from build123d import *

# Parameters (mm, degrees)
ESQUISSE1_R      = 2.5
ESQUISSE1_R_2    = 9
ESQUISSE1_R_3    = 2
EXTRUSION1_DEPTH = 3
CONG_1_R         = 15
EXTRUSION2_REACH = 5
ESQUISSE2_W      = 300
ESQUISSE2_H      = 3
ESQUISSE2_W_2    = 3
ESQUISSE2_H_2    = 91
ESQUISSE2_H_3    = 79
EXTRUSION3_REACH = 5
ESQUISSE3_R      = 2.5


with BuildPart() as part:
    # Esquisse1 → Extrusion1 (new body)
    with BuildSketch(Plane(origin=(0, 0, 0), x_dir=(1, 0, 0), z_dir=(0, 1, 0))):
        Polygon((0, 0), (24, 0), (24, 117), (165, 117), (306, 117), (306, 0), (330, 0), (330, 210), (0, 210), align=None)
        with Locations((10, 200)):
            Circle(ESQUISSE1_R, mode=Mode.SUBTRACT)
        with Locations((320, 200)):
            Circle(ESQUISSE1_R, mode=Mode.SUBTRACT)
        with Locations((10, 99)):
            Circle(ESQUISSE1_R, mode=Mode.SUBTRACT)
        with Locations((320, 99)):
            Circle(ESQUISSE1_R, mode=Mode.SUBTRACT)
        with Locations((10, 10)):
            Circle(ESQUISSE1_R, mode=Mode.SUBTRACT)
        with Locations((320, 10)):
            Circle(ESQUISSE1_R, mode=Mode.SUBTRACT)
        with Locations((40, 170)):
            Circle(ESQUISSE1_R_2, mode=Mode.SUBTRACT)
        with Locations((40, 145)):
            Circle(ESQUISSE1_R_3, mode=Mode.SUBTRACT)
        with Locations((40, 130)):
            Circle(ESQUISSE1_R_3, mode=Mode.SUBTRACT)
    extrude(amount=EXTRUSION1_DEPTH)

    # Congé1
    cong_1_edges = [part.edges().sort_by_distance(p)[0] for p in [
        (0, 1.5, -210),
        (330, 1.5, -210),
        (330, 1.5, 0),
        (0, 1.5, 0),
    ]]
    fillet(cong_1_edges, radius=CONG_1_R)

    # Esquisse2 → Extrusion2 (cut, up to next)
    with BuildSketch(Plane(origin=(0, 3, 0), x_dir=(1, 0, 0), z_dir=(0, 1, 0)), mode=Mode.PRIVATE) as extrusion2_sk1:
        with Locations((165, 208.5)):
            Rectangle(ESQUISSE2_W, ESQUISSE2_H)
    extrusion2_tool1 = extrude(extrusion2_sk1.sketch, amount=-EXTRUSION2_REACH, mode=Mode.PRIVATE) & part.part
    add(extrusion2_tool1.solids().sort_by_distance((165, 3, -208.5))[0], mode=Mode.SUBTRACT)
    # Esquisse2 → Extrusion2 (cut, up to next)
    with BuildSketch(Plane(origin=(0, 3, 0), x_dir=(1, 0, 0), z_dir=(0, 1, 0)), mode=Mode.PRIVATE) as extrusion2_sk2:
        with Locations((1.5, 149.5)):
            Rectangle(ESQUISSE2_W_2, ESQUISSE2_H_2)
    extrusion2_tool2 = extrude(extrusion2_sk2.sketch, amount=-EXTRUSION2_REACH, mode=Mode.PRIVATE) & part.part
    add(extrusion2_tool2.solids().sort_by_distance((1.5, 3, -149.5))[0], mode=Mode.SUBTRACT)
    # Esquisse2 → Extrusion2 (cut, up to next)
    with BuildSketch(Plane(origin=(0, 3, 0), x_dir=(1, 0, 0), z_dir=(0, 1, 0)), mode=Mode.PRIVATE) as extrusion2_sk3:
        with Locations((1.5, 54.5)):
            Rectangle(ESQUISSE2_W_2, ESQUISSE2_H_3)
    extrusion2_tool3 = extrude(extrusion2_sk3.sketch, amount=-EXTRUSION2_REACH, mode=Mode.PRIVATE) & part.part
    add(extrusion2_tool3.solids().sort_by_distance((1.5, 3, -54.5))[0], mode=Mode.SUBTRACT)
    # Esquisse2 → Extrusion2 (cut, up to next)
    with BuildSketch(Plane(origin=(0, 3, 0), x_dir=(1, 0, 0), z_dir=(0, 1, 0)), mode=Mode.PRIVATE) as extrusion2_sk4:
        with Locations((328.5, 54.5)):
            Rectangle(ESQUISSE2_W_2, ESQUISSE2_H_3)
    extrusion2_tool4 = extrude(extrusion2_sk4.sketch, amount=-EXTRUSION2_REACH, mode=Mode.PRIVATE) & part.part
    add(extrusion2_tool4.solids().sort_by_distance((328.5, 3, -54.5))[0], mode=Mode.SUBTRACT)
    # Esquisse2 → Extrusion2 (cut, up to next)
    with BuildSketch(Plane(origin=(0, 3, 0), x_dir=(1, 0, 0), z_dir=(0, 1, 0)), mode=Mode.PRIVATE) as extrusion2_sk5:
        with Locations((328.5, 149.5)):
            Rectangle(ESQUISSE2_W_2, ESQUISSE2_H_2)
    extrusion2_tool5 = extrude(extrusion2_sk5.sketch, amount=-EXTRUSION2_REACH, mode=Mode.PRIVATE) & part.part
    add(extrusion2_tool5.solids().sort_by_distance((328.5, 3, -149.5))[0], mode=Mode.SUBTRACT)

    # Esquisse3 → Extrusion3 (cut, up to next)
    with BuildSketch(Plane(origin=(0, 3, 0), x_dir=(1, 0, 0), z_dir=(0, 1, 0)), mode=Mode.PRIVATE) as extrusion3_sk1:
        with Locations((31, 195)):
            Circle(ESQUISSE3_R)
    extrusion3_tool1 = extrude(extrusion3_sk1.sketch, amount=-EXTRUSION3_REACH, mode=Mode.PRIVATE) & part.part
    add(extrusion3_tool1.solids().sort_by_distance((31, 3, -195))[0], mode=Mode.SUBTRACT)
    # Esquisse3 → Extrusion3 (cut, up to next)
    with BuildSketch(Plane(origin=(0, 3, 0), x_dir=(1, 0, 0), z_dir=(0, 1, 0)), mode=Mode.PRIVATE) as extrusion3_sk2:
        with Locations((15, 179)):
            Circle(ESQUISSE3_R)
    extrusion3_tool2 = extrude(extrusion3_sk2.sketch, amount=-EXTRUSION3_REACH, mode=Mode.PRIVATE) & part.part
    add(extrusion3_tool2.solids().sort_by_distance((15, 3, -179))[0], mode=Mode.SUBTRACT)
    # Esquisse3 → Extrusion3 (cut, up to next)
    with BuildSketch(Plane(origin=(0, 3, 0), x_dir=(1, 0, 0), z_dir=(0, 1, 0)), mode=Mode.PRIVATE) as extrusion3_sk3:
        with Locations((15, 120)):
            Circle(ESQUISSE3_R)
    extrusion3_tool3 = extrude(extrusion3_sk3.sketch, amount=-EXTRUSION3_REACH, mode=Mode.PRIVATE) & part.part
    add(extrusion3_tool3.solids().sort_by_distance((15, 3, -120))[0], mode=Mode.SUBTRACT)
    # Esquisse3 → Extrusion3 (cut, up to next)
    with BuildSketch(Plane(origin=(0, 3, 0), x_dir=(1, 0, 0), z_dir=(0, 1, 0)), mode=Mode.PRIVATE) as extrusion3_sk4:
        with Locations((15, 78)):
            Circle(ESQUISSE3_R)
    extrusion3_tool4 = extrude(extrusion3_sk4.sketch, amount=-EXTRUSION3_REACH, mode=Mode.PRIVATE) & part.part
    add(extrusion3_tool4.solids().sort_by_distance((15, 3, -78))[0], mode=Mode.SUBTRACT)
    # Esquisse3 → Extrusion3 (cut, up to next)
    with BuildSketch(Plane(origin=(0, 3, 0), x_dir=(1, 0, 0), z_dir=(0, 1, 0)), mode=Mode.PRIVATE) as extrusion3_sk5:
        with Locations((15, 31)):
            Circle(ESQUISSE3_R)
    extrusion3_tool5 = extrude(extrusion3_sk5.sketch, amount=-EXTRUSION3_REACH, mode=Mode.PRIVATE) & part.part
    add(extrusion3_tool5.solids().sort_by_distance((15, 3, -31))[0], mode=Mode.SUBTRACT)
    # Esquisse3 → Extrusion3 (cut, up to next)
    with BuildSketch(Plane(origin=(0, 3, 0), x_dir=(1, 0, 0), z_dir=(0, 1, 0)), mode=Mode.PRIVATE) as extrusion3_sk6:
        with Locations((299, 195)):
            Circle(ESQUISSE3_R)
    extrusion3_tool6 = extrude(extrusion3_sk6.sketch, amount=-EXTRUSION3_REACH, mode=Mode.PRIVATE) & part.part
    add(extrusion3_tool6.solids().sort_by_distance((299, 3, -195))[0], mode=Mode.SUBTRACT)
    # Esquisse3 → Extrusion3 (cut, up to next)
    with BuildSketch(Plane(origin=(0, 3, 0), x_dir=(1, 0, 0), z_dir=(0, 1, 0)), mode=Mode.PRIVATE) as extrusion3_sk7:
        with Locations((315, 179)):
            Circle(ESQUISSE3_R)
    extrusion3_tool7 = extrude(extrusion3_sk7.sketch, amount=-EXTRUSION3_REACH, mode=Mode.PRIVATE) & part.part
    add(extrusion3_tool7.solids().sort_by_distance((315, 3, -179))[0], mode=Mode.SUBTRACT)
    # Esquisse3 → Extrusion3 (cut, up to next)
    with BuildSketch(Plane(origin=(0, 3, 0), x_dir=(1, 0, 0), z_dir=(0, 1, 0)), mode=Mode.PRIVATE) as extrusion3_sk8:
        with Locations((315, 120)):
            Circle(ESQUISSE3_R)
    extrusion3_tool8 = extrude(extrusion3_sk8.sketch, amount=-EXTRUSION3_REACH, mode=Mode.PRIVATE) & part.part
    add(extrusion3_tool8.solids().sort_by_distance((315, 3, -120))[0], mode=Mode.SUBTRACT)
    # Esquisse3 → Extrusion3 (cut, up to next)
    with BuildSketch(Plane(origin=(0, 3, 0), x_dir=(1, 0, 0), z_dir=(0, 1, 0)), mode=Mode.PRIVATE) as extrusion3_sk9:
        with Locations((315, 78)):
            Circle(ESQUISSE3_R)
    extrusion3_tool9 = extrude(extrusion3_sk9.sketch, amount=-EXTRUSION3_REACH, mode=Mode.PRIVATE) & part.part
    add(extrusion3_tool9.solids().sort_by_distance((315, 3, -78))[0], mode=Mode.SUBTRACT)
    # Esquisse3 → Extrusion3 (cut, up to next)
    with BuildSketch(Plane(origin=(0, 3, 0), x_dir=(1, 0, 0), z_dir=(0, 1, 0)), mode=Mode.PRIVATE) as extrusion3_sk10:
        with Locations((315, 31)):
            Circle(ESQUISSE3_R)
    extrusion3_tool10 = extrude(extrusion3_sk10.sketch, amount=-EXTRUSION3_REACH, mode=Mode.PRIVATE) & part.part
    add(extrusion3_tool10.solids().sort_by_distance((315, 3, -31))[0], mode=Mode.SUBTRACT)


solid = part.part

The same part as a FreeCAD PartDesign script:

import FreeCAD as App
import Part
import Sketcher

V = App.Vector
Q = App.Units.Quantity


def edges_at(feature, points):
    """Names of the edges that pass closest to the given points."""
    edges = feature.Shape.Edges
    near = lambda p: min(range(len(edges)), key=lambda i: edges[i].distToShape(Part.Vertex(*p))[0])
    return sorted({f"Edge{near(p) + 1}" for p in points})

doc = App.newDocument("Part")
body = doc.addObject("PartDesign::Body", "Body")

# Sketch on XZ plane
sketch1 = body.newObject("Sketcher::SketchObject", "Sketch")
sketch1.AttachmentSupport = (doc.getObject("XZ_Plane"), [""])
sketch1.MapMode = "FlatFace"
sketch1.addGeometry([
    Part.LineSegment(V(0, 0, 0), V(24, 0, 0)),  # 0
    Part.LineSegment(V(24, 0, 0), V(24, -117, 0)),  # 1
    Part.LineSegment(V(24, -117, 0), V(306, -117, 0)),  # 2
    Part.LineSegment(V(306, -117, 0), V(306, 0, 0)),  # 3
    Part.LineSegment(V(306, 0, 0), V(330, 0, 0)),  # 4
    Part.LineSegment(V(330, 0, 0), V(330, -210, 0)),  # 5
    Part.LineSegment(V(330, -210, 0), V(0, -210, 0)),  # 6
    Part.LineSegment(V(0, -210, 0), V(0, 0, 0)),  # 7
    Part.Circle(V(10, -10, 0), V(0, 0, 1), 2.5),  # 8
    Part.Circle(V(10, -99, 0), V(0, 0, 1), 2.5),  # 9
    Part.Circle(V(320, -10, 0), V(0, 0, 1), 2.5),  # 10
    Part.Circle(V(320, -99, 0), V(0, 0, 1), 2.5),  # 11
    Part.Circle(V(40, -130, 0), V(0, 0, 1), 2),  # 12
    Part.Circle(V(40, -145, 0), V(0, 0, 1), 2),  # 13
    Part.Circle(V(40, -170, 0), V(0, 0, 1), 9),  # 14
    Part.Circle(V(10, -200, 0), V(0, 0, 1), 2.5),  # 15
    Part.Circle(V(320, -200, 0), V(0, 0, 1), 2.5),  # 16
], False)
sketch1.addConstraint([
    Sketcher.Constraint("Coincident", 0, 2, 1, 1),
    Sketcher.Constraint("Coincident", 1, 2, 2, 1),
    Sketcher.Constraint("Coincident", 2, 2, 3, 1),
    Sketcher.Constraint("Coincident", 3, 2, 4, 1),
    Sketcher.Constraint("Coincident", 4, 2, 5, 1),
    Sketcher.Constraint("Coincident", 5, 2, 6, 1),
    Sketcher.Constraint("Coincident", 6, 2, 7, 1),
    Sketcher.Constraint("Coincident", 7, 2, 0, 1),
    Sketcher.Constraint("Horizontal", 0),
    Sketcher.Constraint("Vertical", 1),
    Sketcher.Constraint("Horizontal", 2),
    Sketcher.Constraint("Vertical", 3),
    Sketcher.Constraint("Horizontal", 4),
    Sketcher.Constraint("Vertical", 5),
    Sketcher.Constraint("Horizontal", 6),
    Sketcher.Constraint("Vertical", 7),
    Sketcher.Constraint("Coincident", 7, 2, -1, 1),
    Sketcher.Constraint("Equal", 8, 9),
    Sketcher.Constraint("Equal", 9, 10),
    Sketcher.Constraint("Equal", 10, 11),
    Sketcher.Constraint("Equal", 12, 13),
    Sketcher.Constraint("Equal", 11, 15),
    Sketcher.Constraint("Equal", 15, 16),
    Sketcher.Constraint("PointOnObject", 3, 2, -1),
    Sketcher.Constraint("Horizontal", 8, 3, 10, 3),
    Sketcher.Constraint("Horizontal", 9, 3, 11, 3),
    Sketcher.Constraint("Horizontal", 15, 3, 16, 3),
    Sketcher.Constraint("Vertical", 8, 3, 9, 3),
    Sketcher.Constraint("Vertical", 10, 3, 11, 3),
    Sketcher.Constraint("Vertical", 12, 3, 13, 3),
    Sketcher.Constraint("Vertical", 13, 3, 14, 3),
    Sketcher.Constraint("Vertical", 9, 3, 15, 3),
    Sketcher.Constraint("Vertical", 11, 3, 16, 3),
    Sketcher.Constraint("Equal", 0, 4),
    Sketcher.Constraint("Diameter", 8, Q("5 mm")),
    Sketcher.Constraint("Diameter", 12, Q("4 mm")),
    Sketcher.Constraint("Diameter", 14, Q("18 mm")),
    Sketcher.Constraint("DistanceX", 0, 1, 0, 2, Q("24 mm")),
    Sketcher.Constraint("DistanceX", 2, 1, 2, 2, Q("282 mm")),
    Sketcher.Constraint("DistanceY", 1, 2, 1, 1, Q("117 mm")),
    Sketcher.Constraint("DistanceY", 5, 2, 5, 1, Q("210 mm")),
    Sketcher.Constraint("DistanceX", -1, 1, 8, 3, Q("10 mm")),
    Sketcher.Constraint("DistanceY", 8, 3, -1, 1, Q("10 mm")),
    Sketcher.Constraint("DistanceY", 9, 3, -1, 1, Q("99 mm")),
    Sketcher.Constraint("DistanceX", -1, 1, 10, 3, Q("320 mm")),
    Sketcher.Constraint("DistanceX", -1, 1, 12, 3, Q("40 mm")),
    Sketcher.Constraint("DistanceY", 12, 3, -1, 1, Q("130 mm")),
    Sketcher.Constraint("DistanceY", 13, 3, -1, 1, Q("145 mm")),
    Sketcher.Constraint("DistanceY", 14, 3, -1, 1, Q("170 mm")),
    Sketcher.Constraint("DistanceY", 15, 3, -1, 1, Q("200 mm")),
])
pad1 = body.newObject("PartDesign::Pad", "Pad")
pad1.Profile = sketch1
pad1.Length = 3
pad1.Reversed = True
doc.recompute()

fillet = body.newObject("PartDesign::Fillet", "Fillet")
fillet.Base = (pad1, edges_at(pad1, [
    (0, 1.5, -210),
    (330, 1.5, -210),
    (330, 1.5, 0),
    (0, 1.5, 0),
]))
fillet.Radius = 15

# Sketch on XZ plane
sketch2 = body.newObject("Sketcher::SketchObject", "Sketch001")
sketch2.AttachmentSupport = (doc.getObject("XZ_Plane"), [""])
sketch2.MapMode = "FlatFace"
sketch2.AttachmentOffset = App.Placement(V(0, 0, -3), App.Rotation())
sketch2.addGeometry([
    Part.LineSegment(V(15, -210, 0), V(15, -207, 0)),
    Part.LineSegment(V(15, -207, 0), V(315, -207, 0)),
    Part.LineSegment(V(315, -207, 0), V(315, -210, 0)),
    Part.LineSegment(V(315, -210, 0), V(15, -210, 0)),
], False)
sketch2.addConstraint([
    Sketcher.Constraint("Coincident", 0, 2, 1, 1),
    Sketcher.Constraint("Coincident", 1, 2, 2, 1),
    Sketcher.Constraint("Coincident", 2, 2, 3, 1),
    Sketcher.Constraint("Coincident", 3, 2, 0, 1),
    Sketcher.Constraint("Vertical", 0),
    Sketcher.Constraint("Horizontal", 1),
    Sketcher.Constraint("Vertical", 2),
    Sketcher.Constraint("Horizontal", 3),
    Sketcher.Constraint("DistanceX", 1, 1, 1, 2, Q("300 mm")),
    Sketcher.Constraint("DistanceY", 0, 1, 0, 2, Q("3 mm")),
    Sketcher.Constraint("DistanceX", -1, 1, 0, 2, Q("15 mm")),
    Sketcher.Constraint("DistanceY", 0, 2, -1, 1, Q("207 mm")),
])
pocket1 = body.newObject("PartDesign::Pocket", "Pocket")
pocket1.Profile = sketch2
pocket1.Type = "UpToFirst"
pocket1.Reversed = True

# Sketch on XZ plane
sketch3 = body.newObject("Sketcher::SketchObject", "Sketch002")
sketch3.AttachmentSupport = (doc.getObject("XZ_Plane"), [""])
sketch3.MapMode = "FlatFace"
sketch3.AttachmentOffset = App.Placement(V(0, 0, -3), App.Rotation())
sketch3.addGeometry([
    Part.LineSegment(V(0, -195, 0), V(0, -104, 0)),
    Part.LineSegment(V(0, -104, 0), V(3, -104, 0)),
    Part.LineSegment(V(3, -104, 0), V(3, -195, 0)),
    Part.LineSegment(V(3, -195, 0), V(0, -195, 0)),
], False)
sketch3.addConstraint([
    Sketcher.Constraint("Coincident", 0, 2, 1, 1),
    Sketcher.Constraint("Coincident", 1, 2, 2, 1),
    Sketcher.Constraint("Coincident", 2, 2, 3, 1),
    Sketcher.Constraint("Coincident", 3, 2, 0, 1),
    Sketcher.Constraint("Vertical", 0),
    Sketcher.Constraint("Horizontal", 1),
    Sketcher.Constraint("Vertical", 2),
    Sketcher.Constraint("Horizontal", 3),
    Sketcher.Constraint("PointOnObject", 0, 2, -2),
    Sketcher.Constraint("DistanceX", 1, 1, 1, 2, Q("3 mm")),
    Sketcher.Constraint("DistanceY", 0, 1, 0, 2, Q("91 mm")),
    Sketcher.Constraint("DistanceY", 0, 2, -1, 1, Q("104 mm")),
])
pocket2 = body.newObject("PartDesign::Pocket", "Pocket001")
pocket2.Profile = sketch3
pocket2.Type = "UpToFirst"
pocket2.Reversed = True

# Sketch on XZ plane
sketch4 = body.newObject("Sketcher::SketchObject", "Sketch003")
sketch4.AttachmentSupport = (doc.getObject("XZ_Plane"), [""])
sketch4.MapMode = "FlatFace"
sketch4.AttachmentOffset = App.Placement(V(0, 0, -3), App.Rotation())
sketch4.addGeometry([
    Part.LineSegment(V(0, -94, 0), V(0, -15, 0)),
    Part.LineSegment(V(0, -15, 0), V(3, -15, 0)),
    Part.LineSegment(V(3, -15, 0), V(3, -94, 0)),
    Part.LineSegment(V(3, -94, 0), V(0, -94, 0)),
], False)
sketch4.addConstraint([
    Sketcher.Constraint("Coincident", 0, 2, 1, 1),
    Sketcher.Constraint("Coincident", 1, 2, 2, 1),
    Sketcher.Constraint("Coincident", 2, 2, 3, 1),
    Sketcher.Constraint("Coincident", 3, 2, 0, 1),
    Sketcher.Constraint("Vertical", 0),
    Sketcher.Constraint("Horizontal", 1),
    Sketcher.Constraint("Vertical", 2),
    Sketcher.Constraint("Horizontal", 3),
    Sketcher.Constraint("PointOnObject", 0, 2, -2),
    Sketcher.Constraint("DistanceX", 1, 1, 1, 2, Q("3 mm")),
    Sketcher.Constraint("DistanceY", 0, 1, 0, 2, Q("79 mm")),
    Sketcher.Constraint("DistanceY", 0, 2, -1, 1, Q("15 mm")),
])
pocket3 = body.newObject("PartDesign::Pocket", "Pocket002")
pocket3.Profile = sketch4
pocket3.Type = "UpToFirst"
pocket3.Reversed = True

# Sketch on XZ plane
sketch5 = body.newObject("Sketcher::SketchObject", "Sketch004")
sketch5.AttachmentSupport = (doc.getObject("XZ_Plane"), [""])
sketch5.MapMode = "FlatFace"
sketch5.AttachmentOffset = App.Placement(V(0, 0, -3), App.Rotation())
sketch5.addGeometry([
    Part.LineSegment(V(327, -94, 0), V(327, -15, 0)),
    Part.LineSegment(V(327, -15, 0), V(330, -15, 0)),
    Part.LineSegment(V(330, -15, 0), V(330, -94, 0)),
    Part.LineSegment(V(330, -94, 0), V(327, -94, 0)),
], False)
sketch5.addConstraint([
    Sketcher.Constraint("Coincident", 0, 2, 1, 1),
    Sketcher.Constraint("Coincident", 1, 2, 2, 1),
    Sketcher.Constraint("Coincident", 2, 2, 3, 1),
    Sketcher.Constraint("Coincident", 3, 2, 0, 1),
    Sketcher.Constraint("Vertical", 0),
    Sketcher.Constraint("Horizontal", 1),
    Sketcher.Constraint("Vertical", 2),
    Sketcher.Constraint("Horizontal", 3),
    Sketcher.Constraint("DistanceX", 1, 1, 1, 2, Q("3 mm")),
    Sketcher.Constraint("DistanceY", 0, 1, 0, 2, Q("79 mm")),
    Sketcher.Constraint("DistanceX", -1, 1, 0, 2, Q("327 mm")),
    Sketcher.Constraint("DistanceY", 0, 2, -1, 1, Q("15 mm")),
])
pocket4 = body.newObject("PartDesign::Pocket", "Pocket003")
pocket4.Profile = sketch5
pocket4.Type = "UpToFirst"
pocket4.Reversed = True

# Sketch on XZ plane
sketch6 = body.newObject("Sketcher::SketchObject", "Sketch005")
sketch6.AttachmentSupport = (doc.getObject("XZ_Plane"), [""])
sketch6.MapMode = "FlatFace"
sketch6.AttachmentOffset = App.Placement(V(0, 0, -3), App.Rotation())
sketch6.addGeometry([
    Part.LineSegment(V(327, -195, 0), V(327, -104, 0)),
    Part.LineSegment(V(327, -104, 0), V(330, -104, 0)),
    Part.LineSegment(V(330, -104, 0), V(330, -195, 0)),
    Part.LineSegment(V(330, -195, 0), V(327, -195, 0)),
], False)
sketch6.addConstraint([
    Sketcher.Constraint("Coincident", 0, 2, 1, 1),
    Sketcher.Constraint("Coincident", 1, 2, 2, 1),
    Sketcher.Constraint("Coincident", 2, 2, 3, 1),
    Sketcher.Constraint("Coincident", 3, 2, 0, 1),
    Sketcher.Constraint("Vertical", 0),
    Sketcher.Constraint("Horizontal", 1),
    Sketcher.Constraint("Vertical", 2),
    Sketcher.Constraint("Horizontal", 3),
    Sketcher.Constraint("DistanceX", 1, 1, 1, 2, Q("3 mm")),
    Sketcher.Constraint("DistanceY", 0, 1, 0, 2, Q("91 mm")),
    Sketcher.Constraint("DistanceX", -1, 1, 0, 2, Q("327 mm")),
    Sketcher.Constraint("DistanceY", 0, 2, -1, 1, Q("104 mm")),
])
pocket5 = body.newObject("PartDesign::Pocket", "Pocket004")
pocket5.Profile = sketch6
pocket5.Type = "UpToFirst"
pocket5.Reversed = True

# Sketch on XZ plane
sketch7 = body.newObject("Sketcher::SketchObject", "Sketch006")
sketch7.AttachmentSupport = (doc.getObject("XZ_Plane"), [""])
sketch7.MapMode = "FlatFace"
sketch7.AttachmentOffset = App.Placement(V(0, 0, -3), App.Rotation())
sketch7.addGeometry(Part.Circle(V(31, -195, 0), V(0, 0, 1), 2.5), False)
sketch7.addConstraint([
    Sketcher.Constraint("Diameter", 0, Q("5 mm")),
    Sketcher.Constraint("DistanceX", -1, 1, 0, 3, Q("31 mm")),
    Sketcher.Constraint("DistanceY", 0, 3, -1, 1, Q("195 mm")),
])
pocket6 = body.newObject("PartDesign::Pocket", "Pocket005")
pocket6.Profile = sketch7
pocket6.Type = "UpToFirst"
pocket6.Reversed = True

# Sketch on XZ plane
sketch8 = body.newObject("Sketcher::SketchObject", "Sketch007")
sketch8.AttachmentSupport = (doc.getObject("XZ_Plane"), [""])
sketch8.MapMode = "FlatFace"
sketch8.AttachmentOffset = App.Placement(V(0, 0, -3), App.Rotation())
sketch8.addGeometry(Part.Circle(V(15, -179, 0), V(0, 0, 1), 2.5), False)
sketch8.addConstraint([
    Sketcher.Constraint("Diameter", 0, Q("5 mm")),
    Sketcher.Constraint("DistanceX", -1, 1, 0, 3, Q("15 mm")),
    Sketcher.Constraint("DistanceY", 0, 3, -1, 1, Q("179 mm")),
])
pocket7 = body.newObject("PartDesign::Pocket", "Pocket006")
pocket7.Profile = sketch8
pocket7.Type = "UpToFirst"
pocket7.Reversed = True

# Sketch on XZ plane
sketch9 = body.newObject("Sketcher::SketchObject", "Sketch008")
sketch9.AttachmentSupport = (doc.getObject("XZ_Plane"), [""])
sketch9.MapMode = "FlatFace"
sketch9.AttachmentOffset = App.Placement(V(0, 0, -3), App.Rotation())
sketch9.addGeometry(Part.Circle(V(15, -120, 0), V(0, 0, 1), 2.5), False)
sketch9.addConstraint([
    Sketcher.Constraint("Diameter", 0, Q("5 mm")),
    Sketcher.Constraint("DistanceX", -1, 1, 0, 3, Q("15 mm")),
    Sketcher.Constraint("DistanceY", 0, 3, -1, 1, Q("120 mm")),
])
pocket8 = body.newObject("PartDesign::Pocket", "Pocket007")
pocket8.Profile = sketch9
pocket8.Type = "UpToFirst"
pocket8.Reversed = True

# Sketch on XZ plane
sketch10 = body.newObject("Sketcher::SketchObject", "Sketch009")
sketch10.AttachmentSupport = (doc.getObject("XZ_Plane"), [""])
sketch10.MapMode = "FlatFace"
sketch10.AttachmentOffset = App.Placement(V(0, 0, -3), App.Rotation())
sketch10.addGeometry(Part.Circle(V(15, -78, 0), V(0, 0, 1), 2.5), False)
sketch10.addConstraint([
    Sketcher.Constraint("Diameter", 0, Q("5 mm")),
    Sketcher.Constraint("DistanceX", -1, 1, 0, 3, Q("15 mm")),
    Sketcher.Constraint("DistanceY", 0, 3, -1, 1, Q("78 mm")),
])
pocket9 = body.newObject("PartDesign::Pocket", "Pocket008")
pocket9.Profile = sketch10
pocket9.Type = "UpToFirst"
pocket9.Reversed = True

# Sketch on XZ plane
sketch11 = body.newObject("Sketcher::SketchObject", "Sketch010")
sketch11.AttachmentSupport = (doc.getObject("XZ_Plane"), [""])
sketch11.MapMode = "FlatFace"
sketch11.AttachmentOffset = App.Placement(V(0, 0, -3), App.Rotation())
sketch11.addGeometry(Part.Circle(V(15, -31, 0), V(0, 0, 1), 2.5), False)
sketch11.addConstraint([
    Sketcher.Constraint("Diameter", 0, Q("5 mm")),
    Sketcher.Constraint("DistanceX", -1, 1, 0, 3, Q("15 mm")),
    Sketcher.Constraint("DistanceY", 0, 3, -1, 1, Q("31 mm")),
])
pocket10 = body.newObject("PartDesign::Pocket", "Pocket009")
pocket10.Profile = sketch11
pocket10.Type = "UpToFirst"
pocket10.Reversed = True

# Sketch on XZ plane
sketch12 = body.newObject("Sketcher::SketchObject", "Sketch011")
sketch12.AttachmentSupport = (doc.getObject("XZ_Plane"), [""])
sketch12.MapMode = "FlatFace"
sketch12.AttachmentOffset = App.Placement(V(0, 0, -3), App.Rotation())
sketch12.addGeometry(Part.Circle(V(299, -195, 0), V(0, 0, 1), 2.5), False)
sketch12.addConstraint([
    Sketcher.Constraint("Diameter", 0, Q("5 mm")),
    Sketcher.Constraint("DistanceX", -1, 1, 0, 3, Q("299 mm")),
    Sketcher.Constraint("DistanceY", 0, 3, -1, 1, Q("195 mm")),
])
pocket11 = body.newObject("PartDesign::Pocket", "Pocket010")
pocket11.Profile = sketch12
pocket11.Type = "UpToFirst"
pocket11.Reversed = True

# Sketch on XZ plane
sketch13 = body.newObject("Sketcher::SketchObject", "Sketch012")
sketch13.AttachmentSupport = (doc.getObject("XZ_Plane"), [""])
sketch13.MapMode = "FlatFace"
sketch13.AttachmentOffset = App.Placement(V(0, 0, -3), App.Rotation())
sketch13.addGeometry(Part.Circle(V(315, -179, 0), V(0, 0, 1), 2.5), False)
sketch13.addConstraint([
    Sketcher.Constraint("Diameter", 0, Q("5 mm")),
    Sketcher.Constraint("DistanceX", -1, 1, 0, 3, Q("315 mm")),
    Sketcher.Constraint("DistanceY", 0, 3, -1, 1, Q("179 mm")),
])
pocket12 = body.newObject("PartDesign::Pocket", "Pocket011")
pocket12.Profile = sketch13
pocket12.Type = "UpToFirst"
pocket12.Reversed = True

# Sketch on XZ plane
sketch14 = body.newObject("Sketcher::SketchObject", "Sketch013")
sketch14.AttachmentSupport = (doc.getObject("XZ_Plane"), [""])
sketch14.MapMode = "FlatFace"
sketch14.AttachmentOffset = App.Placement(V(0, 0, -3), App.Rotation())
sketch14.addGeometry(Part.Circle(V(315, -120, 0), V(0, 0, 1), 2.5), False)
sketch14.addConstraint([
    Sketcher.Constraint("Diameter", 0, Q("5 mm")),
    Sketcher.Constraint("DistanceX", -1, 1, 0, 3, Q("315 mm")),
    Sketcher.Constraint("DistanceY", 0, 3, -1, 1, Q("120 mm")),
])
pocket13 = body.newObject("PartDesign::Pocket", "Pocket012")
pocket13.Profile = sketch14
pocket13.Type = "UpToFirst"
pocket13.Reversed = True

# Sketch on XZ plane
sketch15 = body.newObject("Sketcher::SketchObject", "Sketch014")
sketch15.AttachmentSupport = (doc.getObject("XZ_Plane"), [""])
sketch15.MapMode = "FlatFace"
sketch15.AttachmentOffset = App.Placement(V(0, 0, -3), App.Rotation())
sketch15.addGeometry(Part.Circle(V(315, -78, 0), V(0, 0, 1), 2.5), False)
sketch15.addConstraint([
    Sketcher.Constraint("Diameter", 0, Q("5 mm")),
    Sketcher.Constraint("DistanceX", -1, 1, 0, 3, Q("315 mm")),
    Sketcher.Constraint("DistanceY", 0, 3, -1, 1, Q("78 mm")),
])
pocket14 = body.newObject("PartDesign::Pocket", "Pocket013")
pocket14.Profile = sketch15
pocket14.Type = "UpToFirst"
pocket14.Reversed = True

# Sketch on XZ plane
sketch16 = body.newObject("Sketcher::SketchObject", "Sketch015")
sketch16.AttachmentSupport = (doc.getObject("XZ_Plane"), [""])
sketch16.MapMode = "FlatFace"
sketch16.AttachmentOffset = App.Placement(V(0, 0, -3), App.Rotation())
sketch16.addGeometry(Part.Circle(V(315, -31, 0), V(0, 0, 1), 2.5), False)
sketch16.addConstraint([
    Sketcher.Constraint("Diameter", 0, Q("5 mm")),
    Sketcher.Constraint("DistanceX", -1, 1, 0, 3, Q("315 mm")),
    Sketcher.Constraint("DistanceY", 0, 3, -1, 1, Q("31 mm")),
])
pocket15 = body.newObject("PartDesign::Pocket", "Pocket014")
pocket15.Profile = sketch16
pocket15.Type = "UpToFirst"
pocket15.Reversed = True

doc.recompute()
